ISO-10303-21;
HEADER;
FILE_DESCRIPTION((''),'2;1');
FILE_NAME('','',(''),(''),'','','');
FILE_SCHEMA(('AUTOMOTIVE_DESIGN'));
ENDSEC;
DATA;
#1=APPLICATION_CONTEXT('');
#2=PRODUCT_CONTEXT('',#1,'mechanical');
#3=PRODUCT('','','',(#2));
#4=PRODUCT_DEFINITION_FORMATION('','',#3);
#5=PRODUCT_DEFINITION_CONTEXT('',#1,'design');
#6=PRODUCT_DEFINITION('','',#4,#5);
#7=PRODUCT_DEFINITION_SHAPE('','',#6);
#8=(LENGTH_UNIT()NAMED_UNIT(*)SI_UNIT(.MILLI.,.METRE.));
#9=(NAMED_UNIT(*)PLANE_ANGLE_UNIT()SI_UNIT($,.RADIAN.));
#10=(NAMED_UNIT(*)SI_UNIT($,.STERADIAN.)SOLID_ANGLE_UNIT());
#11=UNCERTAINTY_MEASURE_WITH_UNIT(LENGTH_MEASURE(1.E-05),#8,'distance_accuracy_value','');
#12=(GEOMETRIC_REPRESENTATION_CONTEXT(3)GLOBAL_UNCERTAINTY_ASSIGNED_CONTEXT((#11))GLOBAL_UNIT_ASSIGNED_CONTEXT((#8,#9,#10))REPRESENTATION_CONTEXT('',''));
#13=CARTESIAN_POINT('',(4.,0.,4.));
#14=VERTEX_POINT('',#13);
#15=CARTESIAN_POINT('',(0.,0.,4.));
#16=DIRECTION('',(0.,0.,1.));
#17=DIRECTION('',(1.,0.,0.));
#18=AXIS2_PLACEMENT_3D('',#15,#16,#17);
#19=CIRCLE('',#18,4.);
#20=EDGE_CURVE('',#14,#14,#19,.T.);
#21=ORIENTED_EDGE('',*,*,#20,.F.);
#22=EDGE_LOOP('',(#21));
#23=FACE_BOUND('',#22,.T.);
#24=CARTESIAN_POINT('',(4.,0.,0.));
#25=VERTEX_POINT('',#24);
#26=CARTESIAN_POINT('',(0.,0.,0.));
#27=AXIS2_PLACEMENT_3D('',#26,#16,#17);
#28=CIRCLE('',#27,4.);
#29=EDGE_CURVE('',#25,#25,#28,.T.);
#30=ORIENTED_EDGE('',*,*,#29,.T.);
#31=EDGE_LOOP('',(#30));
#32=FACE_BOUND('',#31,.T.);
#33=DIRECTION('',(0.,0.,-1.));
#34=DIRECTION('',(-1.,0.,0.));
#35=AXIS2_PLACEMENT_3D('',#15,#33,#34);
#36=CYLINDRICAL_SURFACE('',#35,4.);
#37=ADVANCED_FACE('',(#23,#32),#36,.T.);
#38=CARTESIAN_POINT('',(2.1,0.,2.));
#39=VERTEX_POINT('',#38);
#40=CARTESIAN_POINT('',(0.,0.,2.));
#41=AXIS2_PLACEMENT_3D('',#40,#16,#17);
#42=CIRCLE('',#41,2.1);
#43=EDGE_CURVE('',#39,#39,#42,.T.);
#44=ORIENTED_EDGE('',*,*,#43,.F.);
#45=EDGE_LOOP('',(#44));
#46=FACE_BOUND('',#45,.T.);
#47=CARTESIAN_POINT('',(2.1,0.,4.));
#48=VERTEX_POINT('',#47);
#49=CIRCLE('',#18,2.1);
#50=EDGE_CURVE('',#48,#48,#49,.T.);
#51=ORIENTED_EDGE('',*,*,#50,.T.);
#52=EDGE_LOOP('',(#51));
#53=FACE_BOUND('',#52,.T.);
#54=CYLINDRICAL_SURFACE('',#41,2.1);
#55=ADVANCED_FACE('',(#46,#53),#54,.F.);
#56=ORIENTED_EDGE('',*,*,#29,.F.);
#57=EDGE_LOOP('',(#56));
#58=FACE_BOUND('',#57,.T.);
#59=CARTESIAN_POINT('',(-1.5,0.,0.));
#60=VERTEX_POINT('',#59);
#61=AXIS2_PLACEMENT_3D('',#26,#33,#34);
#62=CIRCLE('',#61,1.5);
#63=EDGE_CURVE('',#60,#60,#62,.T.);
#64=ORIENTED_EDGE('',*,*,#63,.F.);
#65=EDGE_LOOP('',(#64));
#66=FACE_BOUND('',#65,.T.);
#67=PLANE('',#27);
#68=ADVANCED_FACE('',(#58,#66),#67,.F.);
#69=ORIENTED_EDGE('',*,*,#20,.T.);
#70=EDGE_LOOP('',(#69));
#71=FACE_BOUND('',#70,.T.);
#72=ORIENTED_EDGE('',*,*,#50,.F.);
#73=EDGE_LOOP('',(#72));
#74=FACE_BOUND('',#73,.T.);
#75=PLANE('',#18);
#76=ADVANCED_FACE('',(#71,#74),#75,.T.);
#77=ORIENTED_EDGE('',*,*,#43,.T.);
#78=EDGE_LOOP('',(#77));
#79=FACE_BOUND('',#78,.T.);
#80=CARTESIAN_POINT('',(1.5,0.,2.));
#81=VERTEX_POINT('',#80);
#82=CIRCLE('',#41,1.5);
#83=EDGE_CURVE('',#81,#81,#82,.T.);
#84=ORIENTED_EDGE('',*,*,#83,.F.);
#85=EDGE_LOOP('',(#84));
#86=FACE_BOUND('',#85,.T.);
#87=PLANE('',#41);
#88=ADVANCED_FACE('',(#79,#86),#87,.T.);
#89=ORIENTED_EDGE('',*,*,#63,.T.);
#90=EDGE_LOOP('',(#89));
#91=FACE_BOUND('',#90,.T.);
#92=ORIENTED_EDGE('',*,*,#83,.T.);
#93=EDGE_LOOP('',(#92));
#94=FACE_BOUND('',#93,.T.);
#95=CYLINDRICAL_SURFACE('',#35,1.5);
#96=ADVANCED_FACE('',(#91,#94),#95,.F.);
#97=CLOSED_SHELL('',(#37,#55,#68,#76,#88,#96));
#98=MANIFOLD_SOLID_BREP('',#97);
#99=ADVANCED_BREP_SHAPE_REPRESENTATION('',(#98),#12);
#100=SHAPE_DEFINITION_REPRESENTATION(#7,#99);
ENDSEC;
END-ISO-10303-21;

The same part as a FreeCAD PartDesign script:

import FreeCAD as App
import Part
import Sketcher

doc = App.newDocument("Part")
body = doc.addObject("PartDesign::Body", "Body")

# Sketch on XY plane
sketch1 = body.newObject("Sketcher::SketchObject", "Sketch")
sketch1.AttachmentSupport = (doc.getObject("XY_Plane"), [""])
sketch1.MapMode = "FlatFace"
sketch1.addGeometry(Part.Circle(App.Vector(0, 0, 0), App.Vector(0, 0, 1), 4), False)
sketch1.addConstraint(Sketcher.Constraint("Coincident", 0, 3, -1, 1))
sketch1.addConstraint(Sketcher.Constraint("Diameter", 0, 8.0))
pad1 = body.newObject("PartDesign::Pad", "Pad")
pad1.Profile = sketch1
pad1.Length = 4

# Sketch on XY plane
sketch2 = body.newObject("Sketcher::SketchObject", "Sketch001")
sketch2.AttachmentSupport = (doc.getObject("XY_Plane"), [""])
sketch2.MapMode = "FlatFace"
sketch2.AttachmentOffset = App.Placement(App.Vector(0, 0, 4), App.Rotation())
sketch2.addGeometry(Part.Circle(App.Vector(0, 0, 0), App.Vector(0, 0, 1), 2.1), False)
sketch2.addConstraint(Sketcher.Constraint("Coincident", 0, 3, -1, 1))
sketch2.addConstraint(Sketcher.Constraint("Diameter", 0, 4.2))
pocket1 = body.newObject("PartDesign::Pocket", "Pocket")
pocket1.Profile = sketch2
pocket1.Length = 2

# Sketch on XY plane
sketch3 = body.newObject("Sketcher::SketchObject", "Sketch002")
sketch3.AttachmentSupport = (doc.getObject("XY_Plane"), [""])
sketch3.MapMode = "FlatFace"
sketch3.addGeometry(Part.Circle(App.Vector(0, 0, 0), App.Vector(0, 0, 1), 1.5), False)
sketch3.addConstraint(Sketcher.Constraint("Coincident", 0, 3, -1, 1))
sketch3.addConstraint(Sketcher.Constraint("Diameter", 0, 3.0))
pocket2 = body.newObject("PartDesign::Pocket", "Pocket001")
pocket2.Profile = sketch3
pocket2.Type = "ThroughAll"
pocket2.Reversed = True

doc.recompute()
